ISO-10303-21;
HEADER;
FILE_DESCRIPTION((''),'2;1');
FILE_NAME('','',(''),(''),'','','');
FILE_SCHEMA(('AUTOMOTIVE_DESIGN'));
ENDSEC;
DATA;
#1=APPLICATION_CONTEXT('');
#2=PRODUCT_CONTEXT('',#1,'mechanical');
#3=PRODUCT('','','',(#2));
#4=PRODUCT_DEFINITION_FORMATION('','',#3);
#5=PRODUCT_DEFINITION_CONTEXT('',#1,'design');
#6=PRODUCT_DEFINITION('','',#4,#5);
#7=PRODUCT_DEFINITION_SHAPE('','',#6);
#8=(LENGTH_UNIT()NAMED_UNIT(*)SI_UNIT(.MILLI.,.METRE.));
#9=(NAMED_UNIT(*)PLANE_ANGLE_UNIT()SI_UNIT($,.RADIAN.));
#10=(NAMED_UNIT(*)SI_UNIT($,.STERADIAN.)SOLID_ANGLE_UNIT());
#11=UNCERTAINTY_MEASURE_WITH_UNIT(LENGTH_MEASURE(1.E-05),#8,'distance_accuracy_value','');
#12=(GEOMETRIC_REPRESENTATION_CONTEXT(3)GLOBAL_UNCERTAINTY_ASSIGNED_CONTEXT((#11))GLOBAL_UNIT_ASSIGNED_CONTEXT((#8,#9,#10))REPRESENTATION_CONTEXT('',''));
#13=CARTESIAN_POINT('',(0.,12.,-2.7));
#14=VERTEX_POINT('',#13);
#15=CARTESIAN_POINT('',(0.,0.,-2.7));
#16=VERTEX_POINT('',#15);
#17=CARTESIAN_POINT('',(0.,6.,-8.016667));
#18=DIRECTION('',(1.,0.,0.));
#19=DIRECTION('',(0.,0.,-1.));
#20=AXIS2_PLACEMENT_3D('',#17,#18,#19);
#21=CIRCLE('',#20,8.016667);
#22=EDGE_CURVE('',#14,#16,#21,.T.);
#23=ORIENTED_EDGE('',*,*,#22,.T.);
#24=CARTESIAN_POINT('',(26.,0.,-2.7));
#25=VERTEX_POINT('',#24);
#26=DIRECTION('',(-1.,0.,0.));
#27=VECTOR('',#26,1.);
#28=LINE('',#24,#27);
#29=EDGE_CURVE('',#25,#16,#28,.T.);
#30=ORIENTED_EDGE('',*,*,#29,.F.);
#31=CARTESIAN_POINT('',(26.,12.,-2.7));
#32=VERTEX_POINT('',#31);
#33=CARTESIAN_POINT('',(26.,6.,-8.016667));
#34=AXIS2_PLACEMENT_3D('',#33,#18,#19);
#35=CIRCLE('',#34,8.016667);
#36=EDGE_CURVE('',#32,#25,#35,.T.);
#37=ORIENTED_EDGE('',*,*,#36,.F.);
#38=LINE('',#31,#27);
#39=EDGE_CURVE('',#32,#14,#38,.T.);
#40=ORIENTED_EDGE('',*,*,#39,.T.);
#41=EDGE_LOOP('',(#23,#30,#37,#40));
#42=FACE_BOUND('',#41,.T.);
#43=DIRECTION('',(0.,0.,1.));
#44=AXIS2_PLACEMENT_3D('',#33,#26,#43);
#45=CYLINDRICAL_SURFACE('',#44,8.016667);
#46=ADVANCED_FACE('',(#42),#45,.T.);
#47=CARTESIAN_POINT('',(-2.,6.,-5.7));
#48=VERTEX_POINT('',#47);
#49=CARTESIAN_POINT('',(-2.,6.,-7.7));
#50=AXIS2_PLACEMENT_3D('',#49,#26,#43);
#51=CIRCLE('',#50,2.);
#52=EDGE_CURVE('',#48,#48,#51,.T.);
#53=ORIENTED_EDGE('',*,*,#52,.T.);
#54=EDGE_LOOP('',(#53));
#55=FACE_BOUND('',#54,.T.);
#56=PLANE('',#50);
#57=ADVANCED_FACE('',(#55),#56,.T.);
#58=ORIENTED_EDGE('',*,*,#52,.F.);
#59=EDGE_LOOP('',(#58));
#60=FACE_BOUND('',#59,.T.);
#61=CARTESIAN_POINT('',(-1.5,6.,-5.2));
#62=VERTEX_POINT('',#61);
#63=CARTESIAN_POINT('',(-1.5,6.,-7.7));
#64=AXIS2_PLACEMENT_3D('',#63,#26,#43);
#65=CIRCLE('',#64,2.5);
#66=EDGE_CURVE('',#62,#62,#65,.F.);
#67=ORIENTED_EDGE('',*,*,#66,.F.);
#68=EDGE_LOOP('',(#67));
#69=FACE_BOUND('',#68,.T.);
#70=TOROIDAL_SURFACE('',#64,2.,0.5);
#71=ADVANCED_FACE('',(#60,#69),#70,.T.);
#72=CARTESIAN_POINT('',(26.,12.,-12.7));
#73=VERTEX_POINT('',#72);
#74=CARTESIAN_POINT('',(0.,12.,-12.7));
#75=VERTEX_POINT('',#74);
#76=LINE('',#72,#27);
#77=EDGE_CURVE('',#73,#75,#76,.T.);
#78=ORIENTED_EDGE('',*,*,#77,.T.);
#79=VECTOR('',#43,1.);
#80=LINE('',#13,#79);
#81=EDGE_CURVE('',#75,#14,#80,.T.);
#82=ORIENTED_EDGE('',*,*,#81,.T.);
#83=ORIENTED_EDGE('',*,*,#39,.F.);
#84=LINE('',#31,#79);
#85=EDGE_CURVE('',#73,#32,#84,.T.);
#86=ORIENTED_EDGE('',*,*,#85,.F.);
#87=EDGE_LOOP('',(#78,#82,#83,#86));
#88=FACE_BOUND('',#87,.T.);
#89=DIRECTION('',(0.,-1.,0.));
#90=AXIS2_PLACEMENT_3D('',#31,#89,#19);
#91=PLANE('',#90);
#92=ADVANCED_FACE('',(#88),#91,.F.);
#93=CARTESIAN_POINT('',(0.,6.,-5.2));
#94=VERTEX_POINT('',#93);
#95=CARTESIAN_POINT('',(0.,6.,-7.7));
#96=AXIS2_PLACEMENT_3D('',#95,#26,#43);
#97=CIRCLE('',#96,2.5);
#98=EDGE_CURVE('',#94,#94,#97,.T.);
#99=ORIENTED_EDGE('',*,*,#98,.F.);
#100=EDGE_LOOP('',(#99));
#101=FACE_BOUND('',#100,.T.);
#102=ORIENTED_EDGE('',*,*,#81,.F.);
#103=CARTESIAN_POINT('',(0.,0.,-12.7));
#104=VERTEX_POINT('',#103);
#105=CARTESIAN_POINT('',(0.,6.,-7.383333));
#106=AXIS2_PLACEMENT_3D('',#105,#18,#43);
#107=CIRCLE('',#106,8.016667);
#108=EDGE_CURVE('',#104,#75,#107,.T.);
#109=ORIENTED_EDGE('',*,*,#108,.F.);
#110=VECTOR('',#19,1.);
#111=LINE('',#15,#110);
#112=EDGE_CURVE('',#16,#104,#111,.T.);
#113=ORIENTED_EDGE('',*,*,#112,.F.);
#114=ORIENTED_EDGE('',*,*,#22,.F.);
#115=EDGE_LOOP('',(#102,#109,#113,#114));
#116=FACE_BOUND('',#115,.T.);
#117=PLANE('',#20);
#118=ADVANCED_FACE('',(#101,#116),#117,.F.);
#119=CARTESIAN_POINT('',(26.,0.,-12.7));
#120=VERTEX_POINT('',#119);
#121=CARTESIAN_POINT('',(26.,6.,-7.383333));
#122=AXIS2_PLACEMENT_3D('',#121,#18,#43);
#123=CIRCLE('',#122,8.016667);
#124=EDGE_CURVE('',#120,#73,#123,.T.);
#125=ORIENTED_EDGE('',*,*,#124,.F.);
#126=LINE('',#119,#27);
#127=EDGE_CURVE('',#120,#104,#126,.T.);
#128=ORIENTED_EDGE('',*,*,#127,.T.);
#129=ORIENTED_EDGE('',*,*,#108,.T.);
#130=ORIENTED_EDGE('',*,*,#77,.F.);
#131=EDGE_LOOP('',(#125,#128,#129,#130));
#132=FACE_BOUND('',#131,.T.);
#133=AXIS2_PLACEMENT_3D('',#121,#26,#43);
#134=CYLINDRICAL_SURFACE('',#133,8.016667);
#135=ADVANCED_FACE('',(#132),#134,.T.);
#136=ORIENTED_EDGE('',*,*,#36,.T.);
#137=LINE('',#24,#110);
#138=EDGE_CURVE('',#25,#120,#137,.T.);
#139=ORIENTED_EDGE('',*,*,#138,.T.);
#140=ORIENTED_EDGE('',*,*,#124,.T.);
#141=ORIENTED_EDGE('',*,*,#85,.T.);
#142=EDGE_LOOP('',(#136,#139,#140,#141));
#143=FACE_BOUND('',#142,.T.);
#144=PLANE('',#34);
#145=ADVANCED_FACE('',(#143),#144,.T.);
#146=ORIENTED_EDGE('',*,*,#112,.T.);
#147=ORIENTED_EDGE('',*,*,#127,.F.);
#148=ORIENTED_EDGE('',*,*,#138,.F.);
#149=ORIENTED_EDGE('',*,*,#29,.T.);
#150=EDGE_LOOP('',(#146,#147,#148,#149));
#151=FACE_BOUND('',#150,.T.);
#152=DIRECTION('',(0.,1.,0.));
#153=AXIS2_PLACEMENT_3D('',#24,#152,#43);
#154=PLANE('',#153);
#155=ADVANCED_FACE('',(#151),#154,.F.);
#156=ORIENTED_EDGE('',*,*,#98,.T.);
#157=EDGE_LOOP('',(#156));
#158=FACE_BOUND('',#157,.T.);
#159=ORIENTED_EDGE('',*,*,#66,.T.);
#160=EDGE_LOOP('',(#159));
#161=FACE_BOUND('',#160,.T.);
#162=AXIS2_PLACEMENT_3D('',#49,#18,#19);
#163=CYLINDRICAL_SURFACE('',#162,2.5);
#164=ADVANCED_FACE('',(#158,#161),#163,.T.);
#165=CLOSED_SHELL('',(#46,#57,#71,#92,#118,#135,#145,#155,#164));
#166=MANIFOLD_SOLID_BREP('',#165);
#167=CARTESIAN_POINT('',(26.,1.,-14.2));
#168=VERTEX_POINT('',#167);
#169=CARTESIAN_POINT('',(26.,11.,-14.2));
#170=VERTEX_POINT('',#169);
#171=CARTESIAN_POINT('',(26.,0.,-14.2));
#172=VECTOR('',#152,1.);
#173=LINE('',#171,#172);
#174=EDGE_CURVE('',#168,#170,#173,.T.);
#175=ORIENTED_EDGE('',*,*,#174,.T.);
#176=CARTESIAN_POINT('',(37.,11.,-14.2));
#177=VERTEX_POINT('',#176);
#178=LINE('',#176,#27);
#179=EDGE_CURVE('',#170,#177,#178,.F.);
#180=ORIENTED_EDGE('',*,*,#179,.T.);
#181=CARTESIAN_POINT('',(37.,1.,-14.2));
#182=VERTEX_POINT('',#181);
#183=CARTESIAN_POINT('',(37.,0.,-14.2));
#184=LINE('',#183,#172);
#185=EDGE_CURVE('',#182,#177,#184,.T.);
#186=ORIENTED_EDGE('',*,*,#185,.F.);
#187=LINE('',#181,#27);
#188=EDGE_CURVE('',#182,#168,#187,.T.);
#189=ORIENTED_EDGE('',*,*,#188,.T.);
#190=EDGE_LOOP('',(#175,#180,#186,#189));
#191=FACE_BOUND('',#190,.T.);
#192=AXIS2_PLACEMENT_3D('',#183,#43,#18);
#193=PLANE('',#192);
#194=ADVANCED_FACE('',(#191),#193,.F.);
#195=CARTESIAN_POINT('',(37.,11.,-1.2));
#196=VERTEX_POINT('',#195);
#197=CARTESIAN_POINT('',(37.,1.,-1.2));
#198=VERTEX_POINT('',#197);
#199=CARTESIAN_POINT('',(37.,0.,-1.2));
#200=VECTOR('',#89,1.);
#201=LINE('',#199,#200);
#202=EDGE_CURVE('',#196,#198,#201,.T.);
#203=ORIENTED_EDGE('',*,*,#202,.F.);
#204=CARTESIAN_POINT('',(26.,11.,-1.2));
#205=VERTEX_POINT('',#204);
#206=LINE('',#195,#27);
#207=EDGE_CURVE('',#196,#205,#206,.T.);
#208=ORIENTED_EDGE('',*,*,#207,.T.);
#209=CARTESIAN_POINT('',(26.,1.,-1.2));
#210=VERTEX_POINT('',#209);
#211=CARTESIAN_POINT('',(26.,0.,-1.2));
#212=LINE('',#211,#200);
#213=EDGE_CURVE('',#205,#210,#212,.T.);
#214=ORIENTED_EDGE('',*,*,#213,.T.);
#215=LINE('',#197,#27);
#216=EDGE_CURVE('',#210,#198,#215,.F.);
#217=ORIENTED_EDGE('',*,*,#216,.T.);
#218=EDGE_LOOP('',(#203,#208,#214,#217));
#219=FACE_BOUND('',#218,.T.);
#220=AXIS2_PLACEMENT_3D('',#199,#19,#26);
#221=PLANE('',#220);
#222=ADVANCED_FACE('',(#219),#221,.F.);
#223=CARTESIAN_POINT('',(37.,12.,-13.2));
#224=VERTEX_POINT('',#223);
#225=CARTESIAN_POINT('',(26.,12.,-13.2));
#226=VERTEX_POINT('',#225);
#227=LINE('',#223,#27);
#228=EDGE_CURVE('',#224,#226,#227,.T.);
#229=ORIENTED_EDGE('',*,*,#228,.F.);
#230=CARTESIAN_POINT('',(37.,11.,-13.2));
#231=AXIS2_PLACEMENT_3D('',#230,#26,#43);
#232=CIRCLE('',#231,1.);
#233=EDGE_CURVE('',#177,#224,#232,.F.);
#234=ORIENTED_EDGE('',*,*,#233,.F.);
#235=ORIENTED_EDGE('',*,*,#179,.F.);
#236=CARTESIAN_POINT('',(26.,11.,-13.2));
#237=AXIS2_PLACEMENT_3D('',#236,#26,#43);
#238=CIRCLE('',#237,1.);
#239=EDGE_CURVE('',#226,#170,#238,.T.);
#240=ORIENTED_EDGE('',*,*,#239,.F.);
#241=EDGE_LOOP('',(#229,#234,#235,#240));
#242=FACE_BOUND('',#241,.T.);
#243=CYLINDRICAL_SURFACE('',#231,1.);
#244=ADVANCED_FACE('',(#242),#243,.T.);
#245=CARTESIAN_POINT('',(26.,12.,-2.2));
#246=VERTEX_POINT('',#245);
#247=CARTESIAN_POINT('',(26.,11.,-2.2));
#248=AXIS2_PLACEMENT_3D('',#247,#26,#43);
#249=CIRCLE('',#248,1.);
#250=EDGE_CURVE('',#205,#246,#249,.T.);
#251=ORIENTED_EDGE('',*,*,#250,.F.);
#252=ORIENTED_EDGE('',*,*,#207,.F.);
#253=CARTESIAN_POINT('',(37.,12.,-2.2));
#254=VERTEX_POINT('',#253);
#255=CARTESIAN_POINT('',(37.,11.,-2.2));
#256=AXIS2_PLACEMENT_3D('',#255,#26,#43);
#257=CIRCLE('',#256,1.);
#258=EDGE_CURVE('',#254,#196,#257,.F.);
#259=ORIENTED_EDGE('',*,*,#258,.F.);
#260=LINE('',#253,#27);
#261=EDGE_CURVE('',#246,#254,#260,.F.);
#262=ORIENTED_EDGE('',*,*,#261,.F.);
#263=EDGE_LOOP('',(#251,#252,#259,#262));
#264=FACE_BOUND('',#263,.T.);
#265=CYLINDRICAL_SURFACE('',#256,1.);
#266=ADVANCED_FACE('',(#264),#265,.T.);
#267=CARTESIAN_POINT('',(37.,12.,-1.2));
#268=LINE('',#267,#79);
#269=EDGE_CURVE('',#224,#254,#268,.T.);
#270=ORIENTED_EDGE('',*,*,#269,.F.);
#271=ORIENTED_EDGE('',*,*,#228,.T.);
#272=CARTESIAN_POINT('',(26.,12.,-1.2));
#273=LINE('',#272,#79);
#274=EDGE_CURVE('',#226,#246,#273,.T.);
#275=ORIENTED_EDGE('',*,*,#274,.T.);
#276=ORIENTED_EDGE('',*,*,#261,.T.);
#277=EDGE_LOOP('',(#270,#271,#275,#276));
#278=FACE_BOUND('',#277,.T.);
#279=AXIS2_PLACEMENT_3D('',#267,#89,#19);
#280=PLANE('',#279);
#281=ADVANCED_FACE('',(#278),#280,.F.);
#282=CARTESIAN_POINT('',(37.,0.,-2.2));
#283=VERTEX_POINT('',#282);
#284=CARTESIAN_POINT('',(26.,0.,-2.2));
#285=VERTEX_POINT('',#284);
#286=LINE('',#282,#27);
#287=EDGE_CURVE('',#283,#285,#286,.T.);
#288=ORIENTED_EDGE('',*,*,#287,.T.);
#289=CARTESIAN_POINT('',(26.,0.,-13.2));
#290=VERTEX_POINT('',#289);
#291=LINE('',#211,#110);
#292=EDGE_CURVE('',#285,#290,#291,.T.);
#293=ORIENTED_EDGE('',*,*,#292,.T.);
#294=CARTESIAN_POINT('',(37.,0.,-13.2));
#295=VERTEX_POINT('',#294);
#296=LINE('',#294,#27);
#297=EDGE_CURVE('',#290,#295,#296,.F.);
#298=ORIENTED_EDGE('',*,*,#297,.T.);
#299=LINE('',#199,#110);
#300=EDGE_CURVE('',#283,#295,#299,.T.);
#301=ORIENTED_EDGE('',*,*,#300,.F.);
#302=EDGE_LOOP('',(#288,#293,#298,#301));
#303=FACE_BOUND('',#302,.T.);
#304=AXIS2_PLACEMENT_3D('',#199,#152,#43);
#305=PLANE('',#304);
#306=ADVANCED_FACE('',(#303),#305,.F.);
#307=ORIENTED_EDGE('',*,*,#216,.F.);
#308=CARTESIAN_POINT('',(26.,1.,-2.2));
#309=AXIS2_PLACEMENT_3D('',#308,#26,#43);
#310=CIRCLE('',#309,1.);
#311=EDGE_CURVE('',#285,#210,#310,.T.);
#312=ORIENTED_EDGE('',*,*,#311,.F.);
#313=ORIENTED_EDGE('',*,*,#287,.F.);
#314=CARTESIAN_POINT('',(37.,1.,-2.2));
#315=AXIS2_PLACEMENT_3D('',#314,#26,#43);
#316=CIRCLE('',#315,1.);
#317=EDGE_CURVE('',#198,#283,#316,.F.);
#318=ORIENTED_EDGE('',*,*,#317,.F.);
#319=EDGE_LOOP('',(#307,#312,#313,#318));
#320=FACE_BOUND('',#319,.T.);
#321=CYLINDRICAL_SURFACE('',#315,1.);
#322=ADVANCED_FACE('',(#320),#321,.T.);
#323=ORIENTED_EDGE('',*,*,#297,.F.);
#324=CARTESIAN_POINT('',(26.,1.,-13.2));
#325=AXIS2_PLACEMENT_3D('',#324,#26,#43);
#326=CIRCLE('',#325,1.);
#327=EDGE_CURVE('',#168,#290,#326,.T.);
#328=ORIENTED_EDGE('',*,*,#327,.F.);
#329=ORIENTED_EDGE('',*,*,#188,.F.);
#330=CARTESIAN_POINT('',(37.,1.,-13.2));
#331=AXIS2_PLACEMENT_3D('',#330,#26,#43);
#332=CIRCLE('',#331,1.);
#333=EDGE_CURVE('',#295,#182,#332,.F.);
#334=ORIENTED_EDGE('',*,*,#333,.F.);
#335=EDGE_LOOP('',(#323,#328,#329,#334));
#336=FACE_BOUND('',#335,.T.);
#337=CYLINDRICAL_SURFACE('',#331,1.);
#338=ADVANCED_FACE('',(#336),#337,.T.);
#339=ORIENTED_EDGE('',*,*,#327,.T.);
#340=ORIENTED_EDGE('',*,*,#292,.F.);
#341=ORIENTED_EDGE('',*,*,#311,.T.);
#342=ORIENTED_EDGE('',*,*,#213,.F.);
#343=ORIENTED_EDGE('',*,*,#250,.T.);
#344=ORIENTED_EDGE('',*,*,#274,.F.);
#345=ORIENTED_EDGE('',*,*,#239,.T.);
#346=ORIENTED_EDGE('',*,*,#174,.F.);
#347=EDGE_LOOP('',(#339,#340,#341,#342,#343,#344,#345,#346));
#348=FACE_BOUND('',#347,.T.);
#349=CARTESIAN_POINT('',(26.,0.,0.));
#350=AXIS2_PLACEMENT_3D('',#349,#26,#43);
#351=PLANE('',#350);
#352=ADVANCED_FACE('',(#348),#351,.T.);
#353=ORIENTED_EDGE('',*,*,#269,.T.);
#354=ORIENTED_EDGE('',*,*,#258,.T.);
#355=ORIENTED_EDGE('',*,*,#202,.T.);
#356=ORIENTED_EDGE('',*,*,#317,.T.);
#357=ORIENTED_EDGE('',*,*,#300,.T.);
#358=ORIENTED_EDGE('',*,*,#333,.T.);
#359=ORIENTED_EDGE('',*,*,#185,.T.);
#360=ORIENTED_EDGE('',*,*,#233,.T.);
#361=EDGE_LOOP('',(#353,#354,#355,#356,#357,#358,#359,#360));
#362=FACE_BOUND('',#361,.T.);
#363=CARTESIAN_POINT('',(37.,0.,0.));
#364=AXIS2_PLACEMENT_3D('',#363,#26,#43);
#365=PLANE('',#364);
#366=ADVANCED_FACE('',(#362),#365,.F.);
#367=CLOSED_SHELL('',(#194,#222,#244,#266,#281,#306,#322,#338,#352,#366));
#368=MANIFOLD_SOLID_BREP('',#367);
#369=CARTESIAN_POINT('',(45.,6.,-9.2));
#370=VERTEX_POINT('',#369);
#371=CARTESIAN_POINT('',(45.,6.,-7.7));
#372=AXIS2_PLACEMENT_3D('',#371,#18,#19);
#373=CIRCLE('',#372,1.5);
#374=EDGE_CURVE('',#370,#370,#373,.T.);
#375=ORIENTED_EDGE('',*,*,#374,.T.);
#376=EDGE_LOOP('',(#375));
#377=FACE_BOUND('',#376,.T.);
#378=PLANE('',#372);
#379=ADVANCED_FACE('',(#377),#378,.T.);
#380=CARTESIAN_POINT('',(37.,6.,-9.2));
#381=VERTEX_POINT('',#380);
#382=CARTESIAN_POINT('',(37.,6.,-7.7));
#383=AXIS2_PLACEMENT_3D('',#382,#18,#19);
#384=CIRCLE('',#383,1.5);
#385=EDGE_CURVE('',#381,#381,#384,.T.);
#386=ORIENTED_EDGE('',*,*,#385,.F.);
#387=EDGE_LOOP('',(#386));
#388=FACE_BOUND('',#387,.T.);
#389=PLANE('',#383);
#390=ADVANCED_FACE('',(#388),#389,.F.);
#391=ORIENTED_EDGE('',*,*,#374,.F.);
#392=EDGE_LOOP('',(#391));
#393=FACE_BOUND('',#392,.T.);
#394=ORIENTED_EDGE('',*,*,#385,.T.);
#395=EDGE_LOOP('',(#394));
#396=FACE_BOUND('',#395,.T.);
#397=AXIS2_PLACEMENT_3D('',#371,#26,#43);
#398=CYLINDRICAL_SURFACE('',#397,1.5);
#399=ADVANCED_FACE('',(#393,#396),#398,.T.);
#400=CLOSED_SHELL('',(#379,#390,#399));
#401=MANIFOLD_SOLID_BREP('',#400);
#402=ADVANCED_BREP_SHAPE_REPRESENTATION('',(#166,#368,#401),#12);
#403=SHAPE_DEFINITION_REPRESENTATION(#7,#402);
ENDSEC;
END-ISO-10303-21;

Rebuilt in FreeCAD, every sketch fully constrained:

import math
import FreeCAD as App
import Part
import Sketcher
from FreeCAD import Vector


def edges_at(feature, points):
    """Names of the edges that pass closest to the given points."""
    edges = feature.Shape.Edges
    near = lambda p: min(range(len(edges)), key=lambda i: edges[i].distToShape(Part.Vertex(*p))[0])
    return sorted({f"Edge{near(p) + 1}" for p in points})


def add_polygon(sketch, points):
    """Adds a closed chain of lines whose ends are joined by coincident constraints."""
    first, n = sketch.GeometryCount, len(points)
    for a, b in zip(points, points[1:] + points[:1]):
        sketch.addGeometry(Part.LineSegment(App.Vector(*a, 0), App.Vector(*b, 0)), False)
    for i in range(n):
        sketch.addConstraint(Sketcher.Constraint("Coincident", first + i, 2, first + (i + 1) % n, 1))

doc = App.newDocument("Part")
body = doc.addObject("PartDesign::Body", "Body")

# Sketch on YZ plane
sketch1 = body.newObject("Sketcher::SketchObject", "Sketch")
sketch1.AttachmentSupport = (doc.getObject("YZ_Plane"), [""])
sketch1.MapMode = "FlatFace"
sketch1.addGeometry([
    Part.LineSegment(Vector(12, -13, 0), Vector(12, -3, 0)),
    Part.ArcOfCircle(Part.Circle(Vector(6, -8, 0), Vector(0, 0, 1), 8), math.radians(42), math.radians(138)),
    Part.LineSegment(Vector(0, -3, 0), Vector(0, -13, 0)),
    Part.ArcOfCircle(Part.Circle(Vector(6, -7, 0), Vector(0, 0, 1), 8), math.radians(-138), math.radians(-42)),
], False)
sketch1.addConstraint([
    Sketcher.Constraint("Coincident", 0, 2, 1, 1),
    Sketcher.Constraint("Coincident", 1, 2, 2, 1),
    Sketcher.Constraint("Coincident", 2, 2, 3, 1),
    Sketcher.Constraint("Coincident", 3, 2, 0, 1),
    Sketcher.Constraint("Vertical", 0),
    Sketcher.Constraint("Vertical", 2),
    Sketcher.Constraint("Equal", 1, 3),
    Sketcher.Constraint("PointOnObject", 1, 2, -2),
    Sketcher.Constraint("Horizontal", 0, 2, 1, 2),
    Sketcher.Constraint("Horizontal", 2, 2, 3, 2),
    Sketcher.Constraint("DistanceY", 0, 1, 0, 2, 10.0),
    Sketcher.Constraint("DistanceX", -1, 1, 1, 3, 6.0),
    Sketcher.Constraint("DistanceY", 0, 2, -1, 1, 2.7),
    Sketcher.Constraint("Radius", 1, 8.016667),
])
pad1 = body.newObject("PartDesign::Pad", "Pad")
pad1.Profile = sketch1
pad1.Length = 26

# Sketch on YZ plane
sketch2 = body.newObject("Sketcher::SketchObject", "Sketch001")
sketch2.AttachmentSupport = (doc.getObject("YZ_Plane"), [""])
sketch2.MapMode = "FlatFace"
sketch2.addGeometry(Part.Circle(Vector(6, -7.7, 0), Vector(0, 0, 1), 2.5), False)
sketch2.addConstraint([
    Sketcher.Constraint("Diameter", 0, 5.0),
    Sketcher.Constraint("DistanceX", -1, 1, 0, 3, 6.0),
    Sketcher.Constraint("DistanceY", 0, 3, -1, 1, 7.7),
])
pad2 = body.newObject("PartDesign::Pad", "Pad001")
pad2.Profile = sketch2
pad2.Length = 2
pad2.Reversed = True
doc.recompute()

fillet = body.newObject("PartDesign::Fillet", "Fillet")
fillet.Base = (pad2, edges_at(pad2, [(-2, 6, -10.2)]))
fillet.Radius = 0.5
body2 = doc.addObject("PartDesign::Body", "Body001")

# Sketch on YZ plane
sketch3 = body2.newObject("Sketcher::SketchObject", "Sketch002")
sketch3.AttachmentSupport = (doc.getObject("YZ_Plane001"), [""])
sketch3.MapMode = "FlatFace"
sketch3.AttachmentOffset = App.Placement(Vector(0, 0, 26), App.Rotation())
add_polygon(sketch3, [(12, -1), (0, -1), (0, -14), (12, -14)])  # lines 0-3
sketch3.addConstraint([
    Sketcher.Constraint("Horizontal", 0),
    Sketcher.Constraint("Vertical", 1),
    Sketcher.Constraint("Horizontal", 2),
    Sketcher.Constraint("Vertical", 3),
    Sketcher.Constraint("PointOnObject", 0, 2, -2),
    Sketcher.Constraint("DistanceX", 0, 2, 0, 1, 12.0),
    Sketcher.Constraint("DistanceY", 1, 2, 1, 1, 13.0),
    Sketcher.Constraint("DistanceY", 0, 2, -1, 1, 1.2),
])
pad3 = body2.newObject("PartDesign::Pad", "Pad002")
pad3.Profile = sketch3
pad3.Length = 11
doc.recompute()

fillet2 = body2.newObject("PartDesign::Fillet", "Fillet001")
fillet2.Base = (pad3, edges_at(pad3, [
    (31.5, 0, -14.2),
    (31.5, 0, -1.2),
    (31.5, 12, -1.2),
    (31.5, 12, -14.2),
]))
fillet2.Radius = 1
body3 = doc.addObject("PartDesign::Body", "Body002")

# Sketch on YZ plane
sketch4 = body3.newObject("Sketcher::SketchObject", "Sketch003")
sketch4.AttachmentSupport = (doc.getObject("YZ_Plane002"), [""])
sketch4.MapMode = "FlatFace"
sketch4.AttachmentOffset = App.Placement(Vector(0, 0, 37), App.Rotation())
sketch4.addGeometry(Part.Circle(Vector(6, -7.7, 0), Vector(0, 0, 1), 1.5), False)
sketch4.addConstraint([
    Sketcher.Constraint("Diameter", 0, 3.0),
    Sketcher.Constraint("DistanceX", -1, 1, 0, 3, 6.0),
    Sketcher.Constraint("DistanceY", 0, 3, -1, 1, 7.7),
])
pad4 = body3.newObject("PartDesign::Pad", "Pad003")
pad4.Profile = sketch4
pad4.Length = 8

doc.recompute()
